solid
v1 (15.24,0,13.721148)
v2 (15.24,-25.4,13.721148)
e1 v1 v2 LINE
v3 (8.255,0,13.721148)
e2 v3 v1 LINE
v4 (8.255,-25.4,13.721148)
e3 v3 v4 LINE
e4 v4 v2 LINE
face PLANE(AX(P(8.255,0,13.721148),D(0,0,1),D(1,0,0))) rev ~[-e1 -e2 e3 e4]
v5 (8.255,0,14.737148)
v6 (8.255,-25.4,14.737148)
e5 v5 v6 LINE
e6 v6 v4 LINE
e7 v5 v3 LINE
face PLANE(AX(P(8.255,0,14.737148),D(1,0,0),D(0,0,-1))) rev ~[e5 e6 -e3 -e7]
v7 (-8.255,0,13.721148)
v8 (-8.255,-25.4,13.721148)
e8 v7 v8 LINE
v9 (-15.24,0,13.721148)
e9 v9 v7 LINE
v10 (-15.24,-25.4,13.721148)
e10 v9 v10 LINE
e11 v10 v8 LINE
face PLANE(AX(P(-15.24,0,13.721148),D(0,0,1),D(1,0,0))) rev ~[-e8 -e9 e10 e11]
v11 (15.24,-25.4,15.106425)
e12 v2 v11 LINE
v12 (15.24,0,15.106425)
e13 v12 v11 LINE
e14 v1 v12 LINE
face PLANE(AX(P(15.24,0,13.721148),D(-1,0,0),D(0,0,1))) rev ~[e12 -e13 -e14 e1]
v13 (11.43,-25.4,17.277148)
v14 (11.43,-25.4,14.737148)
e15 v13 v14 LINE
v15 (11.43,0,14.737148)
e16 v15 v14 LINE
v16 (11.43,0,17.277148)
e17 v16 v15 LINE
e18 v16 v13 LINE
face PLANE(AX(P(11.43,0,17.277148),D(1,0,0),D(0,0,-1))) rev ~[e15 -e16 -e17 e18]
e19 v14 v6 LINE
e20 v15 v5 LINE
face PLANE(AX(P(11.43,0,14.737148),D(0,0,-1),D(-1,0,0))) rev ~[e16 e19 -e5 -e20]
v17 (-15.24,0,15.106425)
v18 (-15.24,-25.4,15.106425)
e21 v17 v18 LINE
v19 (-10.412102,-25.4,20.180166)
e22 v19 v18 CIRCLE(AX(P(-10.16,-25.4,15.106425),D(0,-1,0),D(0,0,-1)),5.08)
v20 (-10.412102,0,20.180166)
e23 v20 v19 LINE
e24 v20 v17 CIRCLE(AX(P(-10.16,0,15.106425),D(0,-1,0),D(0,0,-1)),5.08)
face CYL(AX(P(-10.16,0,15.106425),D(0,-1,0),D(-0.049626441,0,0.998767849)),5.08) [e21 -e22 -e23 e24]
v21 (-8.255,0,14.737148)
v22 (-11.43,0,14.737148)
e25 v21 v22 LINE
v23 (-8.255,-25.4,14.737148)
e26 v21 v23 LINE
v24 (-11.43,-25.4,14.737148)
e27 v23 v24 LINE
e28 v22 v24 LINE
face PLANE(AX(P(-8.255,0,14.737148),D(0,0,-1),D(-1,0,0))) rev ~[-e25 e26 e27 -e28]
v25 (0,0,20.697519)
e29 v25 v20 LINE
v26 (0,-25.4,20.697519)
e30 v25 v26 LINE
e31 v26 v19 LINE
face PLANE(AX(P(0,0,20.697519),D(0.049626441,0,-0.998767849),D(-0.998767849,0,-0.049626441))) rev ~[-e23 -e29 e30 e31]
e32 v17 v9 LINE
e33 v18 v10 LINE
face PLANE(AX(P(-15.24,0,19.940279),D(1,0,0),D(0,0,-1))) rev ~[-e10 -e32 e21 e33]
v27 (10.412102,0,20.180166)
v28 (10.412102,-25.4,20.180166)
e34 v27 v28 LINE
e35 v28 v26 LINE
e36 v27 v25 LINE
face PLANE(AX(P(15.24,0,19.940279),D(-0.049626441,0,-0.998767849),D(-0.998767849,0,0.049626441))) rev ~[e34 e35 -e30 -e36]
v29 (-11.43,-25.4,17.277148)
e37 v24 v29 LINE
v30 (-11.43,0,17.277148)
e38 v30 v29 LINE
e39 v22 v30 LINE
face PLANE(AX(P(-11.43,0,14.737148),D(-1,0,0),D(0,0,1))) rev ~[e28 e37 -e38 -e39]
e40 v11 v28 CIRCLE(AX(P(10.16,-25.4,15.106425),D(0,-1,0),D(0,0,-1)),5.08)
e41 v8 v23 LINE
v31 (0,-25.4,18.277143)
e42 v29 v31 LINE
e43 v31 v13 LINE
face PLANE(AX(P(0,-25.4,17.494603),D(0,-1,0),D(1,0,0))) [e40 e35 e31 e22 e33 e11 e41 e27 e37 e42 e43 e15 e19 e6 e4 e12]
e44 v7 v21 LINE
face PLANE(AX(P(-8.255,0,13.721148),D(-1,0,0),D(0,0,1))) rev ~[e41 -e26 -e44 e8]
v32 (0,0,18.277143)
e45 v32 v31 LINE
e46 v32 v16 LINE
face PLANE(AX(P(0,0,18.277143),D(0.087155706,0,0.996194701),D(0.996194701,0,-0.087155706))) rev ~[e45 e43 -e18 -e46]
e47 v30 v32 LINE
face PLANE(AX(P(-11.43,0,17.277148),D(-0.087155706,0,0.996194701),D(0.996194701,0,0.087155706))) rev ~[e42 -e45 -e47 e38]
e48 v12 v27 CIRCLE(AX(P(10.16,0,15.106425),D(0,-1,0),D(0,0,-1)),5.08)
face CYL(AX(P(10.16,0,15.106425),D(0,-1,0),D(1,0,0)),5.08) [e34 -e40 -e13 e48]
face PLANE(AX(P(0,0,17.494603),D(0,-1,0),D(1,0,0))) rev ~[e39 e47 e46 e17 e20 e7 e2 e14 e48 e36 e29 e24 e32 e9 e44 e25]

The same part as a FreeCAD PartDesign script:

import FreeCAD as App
import Part
import Sketcher

V = App.Vector
Q = App.Units.Quantity


def edges_at(feature, points):
    """Names of the edges that pass closest to the given points."""
    edges = feature.Shape.Edges
    near = lambda p: min(range(len(edges)), key=lambda i: edges[i].distToShape(Part.Vertex(*p))[0])
    return sorted({f"Edge{near(p) + 1}" for p in points})

doc = App.newDocument("Part")
body = doc.addObject("PartDesign::Body", "Body")

sketch1 = body.newObject("Sketcher::SketchObject", "Sketch")
sketch1.AttachmentSupport = (doc.getObject("XZ_Plane"), [""])
sketch1.MapMode = "FlatFace"
sketch1.addGeometry([
    Part.LineSegment(V(-11.4, 14.7, 0), V(-11.4, 17.3, 0)),
    Part.LineSegment(V(-11.4, 17.3, 0), V(0, 18.3, 0)),
    Part.LineSegment(V(0, 18.3, 0), V(11.4, 17.3, 0)),
    Part.LineSegment(V(11.4, 17.3, 0), V(11.4, 14.7, 0)),
    Part.LineSegment(V(11.4, 14.7, 0), V(8.3, 14.7, 0)),
    Part.LineSegment(V(8.3, 14.7, 0), V(8.3, 13.7, 0)),
    Part.LineSegment(V(8.3, 13.7, 0), V(15.2, 13.7, 0)),
    Part.LineSegment(V(15.2, 13.7, 0), V(15.2, 19.9, 0)),
    Part.LineSegment(V(15.2, 19.9, 0), V(0, 20.7, 0)),
    Part.LineSegment(V(0, 20.7, 0), V(-15.2, 19.9, 0)),
    Part.LineSegment(V(-15.2, 19.9, 0), V(-15.2, 13.7, 0)),
    Part.LineSegment(V(-15.2, 13.7, 0), V(-8.3, 13.7, 0)),
    Part.LineSegment(V(-8.3, 13.7, 0), V(-8.3, 14.7, 0)),
    Part.LineSegment(V(-8.3, 14.7, 0), V(-11.4, 14.7, 0)),
], False)
sketch1.addConstraint([
    Sketcher.Constraint("Coincident", 0, 2, 1, 1),
    Sketcher.Constraint("Coincident", 1, 2, 2, 1),
    Sketcher.Constraint("Coincident", 2, 2, 3, 1),
    Sketcher.Constraint("Coincident", 3, 2, 4, 1),
    Sketcher.Constraint("Coincident", 4, 2, 5, 1),
    Sketcher.Constraint("Coincident", 5, 2, 6, 1),
    Sketcher.Constraint("Coincident", 6, 2, 7, 1),
    Sketcher.Constraint("Coincident", 7, 2, 8, 1),
    Sketcher.Constraint("Coincident", 8, 2, 9, 1),
    Sketcher.Constraint("Coincident", 9, 2, 10, 1),
    Sketcher.Constraint("Coincident", 10, 2, 11, 1),
    Sketcher.Constraint("Coincident", 11, 2, 12, 1),
    Sketcher.Constraint("Coincident", 12, 2, 13, 1),
    Sketcher.Constraint("Coincident", 13, 2, 0, 1),
    Sketcher.Constraint("Vertical", 0),
    Sketcher.Constraint("Vertical", 3),
    Sketcher.Constraint("Horizontal", 4),
    Sketcher.Constraint("Vertical", 5),
    Sketcher.Constraint("Horizontal", 6),
    Sketcher.Constraint("Vertical", 7),
    Sketcher.Constraint("Vertical", 10),
    Sketcher.Constraint("Horizontal", 11),
    Sketcher.Constraint("Vertical", 12),
    Sketcher.Constraint("Horizontal", 13),
    Sketcher.Constraint("Symmetric", 0, 2, 2, 2, -2),
    Sketcher.Constraint("Symmetric", 7, 2, 9, 2, -2),
    Sketcher.Constraint("Symmetric", 5, 2, 11, 2, -2),
    Sketcher.Constraint("PointOnObject", 1, 2, -2),
    Sketcher.Constraint("PointOnObject", 8, 2, -2),
    Sketcher.Constraint("Horizontal", 4, 2, 12, 2),
    Sketcher.Constraint("DistanceY", 0, 1, 0, 2, Q("0.1 in")),
    Sketcher.Constraint("Angle", 1, Q("4.999998 deg")),
    Sketcher.Constraint("DistanceY", 5, 2, 5, 1, Q("0.04 in")),
    Sketcher.Constraint("DistanceX", -1, 1, 6, 2, Q("0.6 in")),
    Sketcher.Constraint("DistanceX", 0, 2, 2, 2, Q("0.9 in")),
    Sketcher.Constraint("DistanceX", 4, 2, 4, 1, Q("0.125 in")),
    Sketcher.Constraint("Distance", 8, 15.258801),
    Sketcher.Constraint("DistanceY", 7, 1, 7, 2, 6.219131),
    Sketcher.Constraint("DistanceY", -1, 1, 0, 2, 17.277148),
])
pad1 = body.newObject("PartDesign::Pad", "Pad")
pad1.Profile = sketch1
pad1.Length = Q("1 in")
doc.recompute()

fillet = body.newObject("PartDesign::Fillet", "Fillet")
fillet.Base = (pad1, edges_at(pad1, [(15.24, -12.7, 19.94), (-15.24, -12.7, 19.94)]))
fillet.Radius = Q("0.2 in")

doc.recompute()
